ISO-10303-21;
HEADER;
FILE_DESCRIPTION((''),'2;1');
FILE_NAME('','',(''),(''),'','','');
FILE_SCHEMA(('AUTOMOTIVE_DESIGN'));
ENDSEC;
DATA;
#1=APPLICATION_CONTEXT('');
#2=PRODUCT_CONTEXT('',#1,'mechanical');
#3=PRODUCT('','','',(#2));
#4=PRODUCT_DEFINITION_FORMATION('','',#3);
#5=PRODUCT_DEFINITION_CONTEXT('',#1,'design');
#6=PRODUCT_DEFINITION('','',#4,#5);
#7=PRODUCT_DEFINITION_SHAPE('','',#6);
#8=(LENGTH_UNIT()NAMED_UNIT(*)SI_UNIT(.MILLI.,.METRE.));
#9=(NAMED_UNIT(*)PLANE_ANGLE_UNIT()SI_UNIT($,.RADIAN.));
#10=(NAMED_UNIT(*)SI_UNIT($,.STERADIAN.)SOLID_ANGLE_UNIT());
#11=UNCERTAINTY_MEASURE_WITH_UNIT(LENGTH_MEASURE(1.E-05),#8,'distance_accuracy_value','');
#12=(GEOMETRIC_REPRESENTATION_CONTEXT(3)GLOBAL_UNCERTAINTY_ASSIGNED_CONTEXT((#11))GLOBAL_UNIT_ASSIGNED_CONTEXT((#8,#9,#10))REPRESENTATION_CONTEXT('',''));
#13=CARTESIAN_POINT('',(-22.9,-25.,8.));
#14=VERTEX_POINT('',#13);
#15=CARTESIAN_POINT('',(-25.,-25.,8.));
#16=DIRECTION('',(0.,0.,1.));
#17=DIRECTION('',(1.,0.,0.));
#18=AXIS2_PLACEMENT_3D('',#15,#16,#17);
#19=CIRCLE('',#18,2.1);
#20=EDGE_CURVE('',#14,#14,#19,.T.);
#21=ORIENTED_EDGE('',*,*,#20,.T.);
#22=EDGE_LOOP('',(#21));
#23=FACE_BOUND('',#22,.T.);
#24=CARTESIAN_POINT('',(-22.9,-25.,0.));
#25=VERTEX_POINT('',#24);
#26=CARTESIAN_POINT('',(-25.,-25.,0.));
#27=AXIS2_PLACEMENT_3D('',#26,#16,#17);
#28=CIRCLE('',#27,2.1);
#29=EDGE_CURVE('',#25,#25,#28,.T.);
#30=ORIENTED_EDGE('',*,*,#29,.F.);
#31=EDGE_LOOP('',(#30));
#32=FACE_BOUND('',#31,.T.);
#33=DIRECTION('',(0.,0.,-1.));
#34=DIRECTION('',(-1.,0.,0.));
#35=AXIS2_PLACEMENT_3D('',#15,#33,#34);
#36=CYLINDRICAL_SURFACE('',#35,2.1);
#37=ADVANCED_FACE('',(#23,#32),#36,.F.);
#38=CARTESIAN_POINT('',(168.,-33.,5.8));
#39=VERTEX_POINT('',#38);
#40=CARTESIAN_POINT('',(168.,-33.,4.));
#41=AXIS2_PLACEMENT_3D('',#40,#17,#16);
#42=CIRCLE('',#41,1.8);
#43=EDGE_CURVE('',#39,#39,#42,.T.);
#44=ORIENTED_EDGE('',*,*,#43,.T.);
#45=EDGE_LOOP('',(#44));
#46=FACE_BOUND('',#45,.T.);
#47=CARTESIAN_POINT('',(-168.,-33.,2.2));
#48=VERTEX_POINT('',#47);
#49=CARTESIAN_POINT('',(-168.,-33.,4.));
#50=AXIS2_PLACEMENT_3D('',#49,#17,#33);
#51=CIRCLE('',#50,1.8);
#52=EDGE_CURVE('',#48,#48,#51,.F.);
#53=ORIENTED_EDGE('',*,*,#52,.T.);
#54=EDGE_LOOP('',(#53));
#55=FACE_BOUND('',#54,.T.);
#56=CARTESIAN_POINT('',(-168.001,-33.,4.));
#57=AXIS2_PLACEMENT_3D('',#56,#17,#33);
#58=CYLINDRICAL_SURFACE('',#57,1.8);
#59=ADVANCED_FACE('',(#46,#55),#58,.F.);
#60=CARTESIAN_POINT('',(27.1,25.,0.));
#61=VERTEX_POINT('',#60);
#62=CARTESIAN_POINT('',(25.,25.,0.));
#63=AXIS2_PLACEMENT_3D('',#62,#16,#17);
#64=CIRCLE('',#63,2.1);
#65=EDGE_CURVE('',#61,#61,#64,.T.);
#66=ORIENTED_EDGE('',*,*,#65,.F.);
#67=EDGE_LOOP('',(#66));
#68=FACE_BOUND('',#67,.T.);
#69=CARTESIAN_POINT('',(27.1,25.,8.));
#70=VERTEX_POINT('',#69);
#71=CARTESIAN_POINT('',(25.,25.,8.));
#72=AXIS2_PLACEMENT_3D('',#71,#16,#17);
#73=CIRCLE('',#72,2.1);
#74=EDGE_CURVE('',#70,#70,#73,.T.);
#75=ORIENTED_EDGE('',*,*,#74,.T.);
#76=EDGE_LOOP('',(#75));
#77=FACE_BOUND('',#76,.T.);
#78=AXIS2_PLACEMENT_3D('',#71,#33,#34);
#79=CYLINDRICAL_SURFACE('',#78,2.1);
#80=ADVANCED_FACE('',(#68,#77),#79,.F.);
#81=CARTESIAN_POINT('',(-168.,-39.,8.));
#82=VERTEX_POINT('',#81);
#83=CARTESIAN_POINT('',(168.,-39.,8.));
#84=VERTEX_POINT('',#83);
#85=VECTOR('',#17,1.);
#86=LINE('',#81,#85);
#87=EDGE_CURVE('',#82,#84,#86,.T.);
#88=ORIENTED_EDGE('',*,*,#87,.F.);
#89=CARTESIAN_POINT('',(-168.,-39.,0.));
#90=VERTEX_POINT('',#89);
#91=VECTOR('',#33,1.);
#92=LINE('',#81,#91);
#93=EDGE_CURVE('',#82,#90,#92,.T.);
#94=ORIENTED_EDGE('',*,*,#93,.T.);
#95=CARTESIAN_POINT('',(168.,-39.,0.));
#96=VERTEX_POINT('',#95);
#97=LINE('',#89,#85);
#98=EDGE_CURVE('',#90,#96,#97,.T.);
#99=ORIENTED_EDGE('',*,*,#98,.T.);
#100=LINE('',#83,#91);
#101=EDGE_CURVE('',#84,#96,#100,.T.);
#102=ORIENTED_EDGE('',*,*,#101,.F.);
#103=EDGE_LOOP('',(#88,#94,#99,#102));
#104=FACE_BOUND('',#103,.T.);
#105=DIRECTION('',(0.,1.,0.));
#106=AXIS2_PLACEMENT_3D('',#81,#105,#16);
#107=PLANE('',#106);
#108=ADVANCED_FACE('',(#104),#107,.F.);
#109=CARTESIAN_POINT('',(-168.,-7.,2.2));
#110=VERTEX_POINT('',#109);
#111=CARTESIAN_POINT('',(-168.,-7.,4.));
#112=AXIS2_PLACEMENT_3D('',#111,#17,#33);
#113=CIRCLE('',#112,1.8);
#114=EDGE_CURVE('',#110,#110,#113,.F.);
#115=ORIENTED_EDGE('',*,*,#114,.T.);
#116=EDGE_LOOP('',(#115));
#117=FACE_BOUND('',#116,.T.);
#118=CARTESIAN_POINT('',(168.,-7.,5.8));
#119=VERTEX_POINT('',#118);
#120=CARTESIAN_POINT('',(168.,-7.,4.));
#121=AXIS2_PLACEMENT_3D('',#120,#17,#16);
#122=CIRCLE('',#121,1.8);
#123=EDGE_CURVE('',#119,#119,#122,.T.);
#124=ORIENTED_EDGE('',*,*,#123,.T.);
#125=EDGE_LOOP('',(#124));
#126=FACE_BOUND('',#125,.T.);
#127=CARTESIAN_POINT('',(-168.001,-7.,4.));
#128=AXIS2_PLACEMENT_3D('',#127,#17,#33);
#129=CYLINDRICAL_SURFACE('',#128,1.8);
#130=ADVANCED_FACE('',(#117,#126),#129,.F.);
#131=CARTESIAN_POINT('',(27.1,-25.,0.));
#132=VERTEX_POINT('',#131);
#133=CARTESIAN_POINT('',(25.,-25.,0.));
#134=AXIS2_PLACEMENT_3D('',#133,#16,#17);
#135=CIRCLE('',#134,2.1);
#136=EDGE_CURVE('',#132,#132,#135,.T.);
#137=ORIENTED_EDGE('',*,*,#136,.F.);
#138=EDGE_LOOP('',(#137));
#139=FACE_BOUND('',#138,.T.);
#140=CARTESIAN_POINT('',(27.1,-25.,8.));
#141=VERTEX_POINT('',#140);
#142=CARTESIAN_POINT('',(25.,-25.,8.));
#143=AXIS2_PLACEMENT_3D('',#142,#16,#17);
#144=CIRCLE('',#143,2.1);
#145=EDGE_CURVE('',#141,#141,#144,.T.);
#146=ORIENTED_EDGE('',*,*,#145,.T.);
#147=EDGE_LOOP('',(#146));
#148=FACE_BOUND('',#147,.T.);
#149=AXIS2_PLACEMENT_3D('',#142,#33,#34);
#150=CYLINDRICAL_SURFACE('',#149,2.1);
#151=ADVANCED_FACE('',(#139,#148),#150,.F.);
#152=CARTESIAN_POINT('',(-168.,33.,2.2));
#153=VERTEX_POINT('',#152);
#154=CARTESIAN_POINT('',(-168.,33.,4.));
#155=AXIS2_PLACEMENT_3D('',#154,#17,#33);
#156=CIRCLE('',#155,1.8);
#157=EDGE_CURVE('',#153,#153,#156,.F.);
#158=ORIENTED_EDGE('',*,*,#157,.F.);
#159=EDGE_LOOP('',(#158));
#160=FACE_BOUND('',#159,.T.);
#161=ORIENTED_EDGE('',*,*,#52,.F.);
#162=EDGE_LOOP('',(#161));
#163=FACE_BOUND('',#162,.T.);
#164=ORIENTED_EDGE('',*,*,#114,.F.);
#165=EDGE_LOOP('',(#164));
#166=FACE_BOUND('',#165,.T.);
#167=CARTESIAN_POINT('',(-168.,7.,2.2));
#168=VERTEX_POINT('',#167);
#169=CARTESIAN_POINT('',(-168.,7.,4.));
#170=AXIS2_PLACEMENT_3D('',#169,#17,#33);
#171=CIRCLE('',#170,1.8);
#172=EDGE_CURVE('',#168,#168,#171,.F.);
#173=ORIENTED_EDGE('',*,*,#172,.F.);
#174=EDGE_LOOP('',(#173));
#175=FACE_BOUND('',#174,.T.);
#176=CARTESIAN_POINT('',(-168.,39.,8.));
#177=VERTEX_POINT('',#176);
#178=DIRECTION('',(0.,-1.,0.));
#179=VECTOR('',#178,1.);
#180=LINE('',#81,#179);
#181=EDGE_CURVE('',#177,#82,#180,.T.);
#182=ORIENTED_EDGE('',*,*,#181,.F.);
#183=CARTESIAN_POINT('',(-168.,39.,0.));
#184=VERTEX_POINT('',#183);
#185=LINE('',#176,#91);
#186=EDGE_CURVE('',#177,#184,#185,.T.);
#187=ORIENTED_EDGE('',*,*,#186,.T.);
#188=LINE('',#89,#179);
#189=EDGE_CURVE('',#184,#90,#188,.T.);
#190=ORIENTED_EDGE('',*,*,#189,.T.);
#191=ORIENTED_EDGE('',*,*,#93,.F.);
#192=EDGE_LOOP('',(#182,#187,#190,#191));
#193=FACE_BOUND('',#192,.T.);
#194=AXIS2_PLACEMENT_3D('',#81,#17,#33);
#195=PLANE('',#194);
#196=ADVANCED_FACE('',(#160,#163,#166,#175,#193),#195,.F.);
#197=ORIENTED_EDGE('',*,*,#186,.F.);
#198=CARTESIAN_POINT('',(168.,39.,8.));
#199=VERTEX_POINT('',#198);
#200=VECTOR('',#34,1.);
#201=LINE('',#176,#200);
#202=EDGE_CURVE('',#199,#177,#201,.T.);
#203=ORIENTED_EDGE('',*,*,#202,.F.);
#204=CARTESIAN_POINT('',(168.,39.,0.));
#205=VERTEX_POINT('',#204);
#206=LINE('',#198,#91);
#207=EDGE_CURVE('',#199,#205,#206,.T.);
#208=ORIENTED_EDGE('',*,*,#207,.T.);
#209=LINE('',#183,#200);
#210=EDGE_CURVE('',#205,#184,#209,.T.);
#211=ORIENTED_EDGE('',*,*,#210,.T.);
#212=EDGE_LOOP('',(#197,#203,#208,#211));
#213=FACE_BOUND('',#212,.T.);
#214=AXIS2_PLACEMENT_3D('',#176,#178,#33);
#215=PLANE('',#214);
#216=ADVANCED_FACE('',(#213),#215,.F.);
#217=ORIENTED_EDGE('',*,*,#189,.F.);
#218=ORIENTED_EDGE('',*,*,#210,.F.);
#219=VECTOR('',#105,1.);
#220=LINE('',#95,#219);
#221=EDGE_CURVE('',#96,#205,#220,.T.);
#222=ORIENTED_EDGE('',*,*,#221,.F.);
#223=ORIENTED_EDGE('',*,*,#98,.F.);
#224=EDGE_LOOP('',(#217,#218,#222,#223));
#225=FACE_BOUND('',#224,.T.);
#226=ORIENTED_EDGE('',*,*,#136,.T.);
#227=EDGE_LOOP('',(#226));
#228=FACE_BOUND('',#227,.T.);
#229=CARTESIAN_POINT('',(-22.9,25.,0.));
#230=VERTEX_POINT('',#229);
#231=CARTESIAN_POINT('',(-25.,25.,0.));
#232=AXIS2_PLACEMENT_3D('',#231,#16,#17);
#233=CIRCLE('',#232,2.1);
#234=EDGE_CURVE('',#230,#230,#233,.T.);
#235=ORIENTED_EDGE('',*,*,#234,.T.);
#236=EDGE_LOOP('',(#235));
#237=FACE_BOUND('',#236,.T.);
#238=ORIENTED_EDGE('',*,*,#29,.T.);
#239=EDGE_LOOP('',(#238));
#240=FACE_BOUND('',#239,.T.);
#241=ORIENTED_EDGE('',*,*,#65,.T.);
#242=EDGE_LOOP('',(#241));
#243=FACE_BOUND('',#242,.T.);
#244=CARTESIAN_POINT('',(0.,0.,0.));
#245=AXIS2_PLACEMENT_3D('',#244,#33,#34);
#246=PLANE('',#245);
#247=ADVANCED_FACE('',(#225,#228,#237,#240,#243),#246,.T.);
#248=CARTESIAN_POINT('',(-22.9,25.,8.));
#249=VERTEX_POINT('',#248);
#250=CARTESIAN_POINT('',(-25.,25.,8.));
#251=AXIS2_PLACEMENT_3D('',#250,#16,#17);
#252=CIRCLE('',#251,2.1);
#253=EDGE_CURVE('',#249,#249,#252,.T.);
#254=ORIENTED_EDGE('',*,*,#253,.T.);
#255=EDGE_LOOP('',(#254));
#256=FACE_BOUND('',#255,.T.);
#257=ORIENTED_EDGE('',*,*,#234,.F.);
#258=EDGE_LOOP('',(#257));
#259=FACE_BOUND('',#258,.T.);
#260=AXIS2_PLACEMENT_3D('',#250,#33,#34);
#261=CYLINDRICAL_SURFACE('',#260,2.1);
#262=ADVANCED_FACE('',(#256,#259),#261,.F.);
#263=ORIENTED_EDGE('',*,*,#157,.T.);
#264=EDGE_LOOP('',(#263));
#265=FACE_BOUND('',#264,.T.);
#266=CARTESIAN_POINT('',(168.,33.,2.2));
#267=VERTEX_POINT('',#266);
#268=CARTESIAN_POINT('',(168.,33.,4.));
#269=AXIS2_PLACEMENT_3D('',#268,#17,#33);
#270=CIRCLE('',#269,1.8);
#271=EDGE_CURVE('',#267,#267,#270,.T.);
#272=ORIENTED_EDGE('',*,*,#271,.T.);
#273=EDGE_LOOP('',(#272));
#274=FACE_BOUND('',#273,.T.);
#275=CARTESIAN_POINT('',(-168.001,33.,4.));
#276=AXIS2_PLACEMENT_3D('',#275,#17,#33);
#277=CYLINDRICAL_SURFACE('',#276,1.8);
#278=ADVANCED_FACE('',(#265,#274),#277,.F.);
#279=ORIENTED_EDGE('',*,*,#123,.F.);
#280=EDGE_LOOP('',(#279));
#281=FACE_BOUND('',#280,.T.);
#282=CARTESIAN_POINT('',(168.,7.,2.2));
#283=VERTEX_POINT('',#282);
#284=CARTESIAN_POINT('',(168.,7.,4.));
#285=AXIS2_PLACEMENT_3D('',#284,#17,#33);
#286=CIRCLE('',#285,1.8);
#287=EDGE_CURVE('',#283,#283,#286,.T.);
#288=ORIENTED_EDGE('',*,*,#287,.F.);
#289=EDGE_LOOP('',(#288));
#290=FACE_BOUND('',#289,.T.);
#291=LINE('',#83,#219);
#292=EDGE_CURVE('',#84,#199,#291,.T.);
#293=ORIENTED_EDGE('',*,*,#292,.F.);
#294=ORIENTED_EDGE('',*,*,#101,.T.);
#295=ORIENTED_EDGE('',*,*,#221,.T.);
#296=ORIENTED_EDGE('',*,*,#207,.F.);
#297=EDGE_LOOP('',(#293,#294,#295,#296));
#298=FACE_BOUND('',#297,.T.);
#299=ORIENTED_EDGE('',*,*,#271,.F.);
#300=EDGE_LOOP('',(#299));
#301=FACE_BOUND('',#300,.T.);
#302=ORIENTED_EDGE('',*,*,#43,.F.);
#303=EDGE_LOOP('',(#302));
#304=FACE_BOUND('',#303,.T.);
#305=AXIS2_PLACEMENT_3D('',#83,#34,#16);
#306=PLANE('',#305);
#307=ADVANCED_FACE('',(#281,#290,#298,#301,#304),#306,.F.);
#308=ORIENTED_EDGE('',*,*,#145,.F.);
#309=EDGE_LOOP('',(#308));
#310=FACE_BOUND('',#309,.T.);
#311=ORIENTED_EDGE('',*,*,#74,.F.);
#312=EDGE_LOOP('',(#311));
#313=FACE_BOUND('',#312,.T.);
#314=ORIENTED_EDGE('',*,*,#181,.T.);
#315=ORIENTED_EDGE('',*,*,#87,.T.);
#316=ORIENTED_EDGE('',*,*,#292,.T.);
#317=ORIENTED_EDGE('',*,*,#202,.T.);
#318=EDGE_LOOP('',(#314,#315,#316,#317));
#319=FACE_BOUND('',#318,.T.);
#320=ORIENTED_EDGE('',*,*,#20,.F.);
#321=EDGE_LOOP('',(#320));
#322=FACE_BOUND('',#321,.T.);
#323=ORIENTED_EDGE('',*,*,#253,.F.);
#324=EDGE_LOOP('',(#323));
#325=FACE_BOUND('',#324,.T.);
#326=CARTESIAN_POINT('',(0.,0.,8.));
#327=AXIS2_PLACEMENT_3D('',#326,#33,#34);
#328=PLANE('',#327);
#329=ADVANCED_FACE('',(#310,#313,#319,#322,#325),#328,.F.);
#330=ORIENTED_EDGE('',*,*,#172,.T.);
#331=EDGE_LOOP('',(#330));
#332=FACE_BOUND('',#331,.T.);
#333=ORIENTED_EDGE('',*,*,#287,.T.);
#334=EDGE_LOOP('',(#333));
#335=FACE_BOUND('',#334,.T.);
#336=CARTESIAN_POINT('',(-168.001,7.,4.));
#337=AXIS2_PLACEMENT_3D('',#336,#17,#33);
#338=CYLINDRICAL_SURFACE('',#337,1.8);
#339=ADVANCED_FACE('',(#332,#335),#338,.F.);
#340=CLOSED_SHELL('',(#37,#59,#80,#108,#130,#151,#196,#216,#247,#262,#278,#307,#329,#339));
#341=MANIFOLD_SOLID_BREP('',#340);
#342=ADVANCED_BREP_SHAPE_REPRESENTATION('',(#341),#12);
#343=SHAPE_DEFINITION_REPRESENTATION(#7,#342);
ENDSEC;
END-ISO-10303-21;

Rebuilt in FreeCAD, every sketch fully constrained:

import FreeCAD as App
import Part
import Sketcher
from FreeCAD import Vector


def add_polygon(sketch, points):
    """Adds a closed chain of lines whose ends are joined by coincident constraints."""
    first, n = sketch.GeometryCount, len(points)
    for a, b in zip(points, points[1:] + points[:1]):
        sketch.addGeometry(Part.LineSegment(App.Vector(*a, 0), App.Vector(*b, 0)), False)
    for i in range(n):
        sketch.addConstraint(Sketcher.Constraint("Coincident", first + i, 2, first + (i + 1) % n, 1))

doc = App.newDocument("Part")
body = doc.addObject("PartDesign::Body", "Body")

sketch1 = body.newObject("Sketcher::SketchObject", "Sketch")
sketch1.AttachmentSupport = (doc.getObject("XY_Plane"), [""])
sketch1.MapMode = "FlatFace"
add_polygon(sketch1, [(-168, 39), (-168, -39), (168, -39), (168, 39)])
sketch1.addGeometry(Part.Circle(Vector(-25, -25, 0), Vector(0, 0, 1), 2.1), False)
sketch1.addGeometry(Part.Circle(Vector(25, -25, 0), Vector(0, 0, 1), 2.1), False)
sketch1.addGeometry(Part.Circle(Vector(-25, 25, 0), Vector(0, 0, 1), 2.1), False)
sketch1.addGeometry(Part.Circle(Vector(25, 25, 0), Vector(0, 0, 1), 2.1), False)
sketch1.addConstraint([
    Sketcher.Constraint("Vertical", 0),
    Sketcher.Constraint("Horizontal", 1),
    Sketcher.Constraint("Vertical", 2),
    Sketcher.Constraint("Horizontal", 3),
    Sketcher.Constraint("Equal", 4, 5),
    Sketcher.Constraint("Equal", 5, 6),
    Sketcher.Constraint("Equal", 6, 7),
    Sketcher.Constraint("Symmetric", 5, 3, 6, 3, -1, 1),
    Sketcher.Constraint("Symmetric", 4, 3, 7, 3, -1, 1),
    Sketcher.Constraint("Symmetric", 0, 2, 2, 2, -1, 1),
    Sketcher.Constraint("Symmetric", 4, 3, 5, 3, -2),
    Sketcher.Constraint("Diameter", 4, 4.2),
    Sketcher.Constraint("DistanceX", 1, 1, 1, 2, 336.0),
    Sketcher.Constraint("DistanceY", 0, 2, 0, 1, 78.0),
    Sketcher.Constraint("DistanceX", 4, 3, -1, 1, 25.0),
    Sketcher.Constraint("DistanceY", 4, 3, -1, 1, 25.0),
])
pad1 = body.newObject("PartDesign::Pad", "Pad")
pad1.Profile = sketch1
pad1.Length = 8

sketch2 = body.newObject("Sketcher::SketchObject", "Sketch001")
sketch2.AttachmentSupport = (doc.getObject("YZ_Plane"), [""])
sketch2.MapMode = "FlatFace"
sketch2.AttachmentOffset = App.Placement(Vector(0, 0, 168), App.Rotation())
sketch2.addGeometry(Part.Circle(Vector(33, 4, 0), Vector(0, 0, 1), 1.8), False)
sketch2.addConstraint([
    Sketcher.Constraint("Diameter", 0, 3.6),
    Sketcher.Constraint("DistanceX", -1, 1, 0, 3, 33.0),
    Sketcher.Constraint("DistanceY", -1, 1, 0, 3, 4.0),
])
pocket1 = body.newObject("PartDesign::Pocket", "Pocket")
pocket1.Profile = sketch2
pocket1.Type = "UpToFirst"

sketch3 = body.newObject("Sketcher::SketchObject", "Sketch002")
sketch3.AttachmentSupport = (doc.getObject("YZ_Plane"), [""])
sketch3.MapMode = "FlatFace"
sketch3.AttachmentOffset = App.Placement(Vector(0, 0, 168), App.Rotation())
sketch3.addGeometry(Part.Circle(Vector(7, 4, 0), Vector(0, 0, 1), 1.8), False)
sketch3.addConstraint([
    Sketcher.Constraint("Diameter", 0, 3.6),
    Sketcher.Constraint("DistanceX", -1, 1, 0, 3, 7.0),
    Sketcher.Constraint("DistanceY", -1, 1, 0, 3, 4.0),
])
pocket2 = body.newObject("PartDesign::Pocket", "Pocket001")
pocket2.Profile = sketch3
pocket2.Type = "UpToFirst"

sketch4 = body.newObject("Sketcher::SketchObject", "Sketch003")
sketch4.AttachmentSupport = (doc.getObject("YZ_Plane"), [""])
sketch4.MapMode = "FlatFace"
sketch4.AttachmentOffset = App.Placement(Vector(0, 0, 168), App.Rotation())
sketch4.addGeometry(Part.Circle(Vector(-7, 4, 0), Vector(0, 0, 1), 1.8), False)
sketch4.addConstraint([
    Sketcher.Constraint("Diameter", 0, 3.6),
    Sketcher.Constraint("DistanceX", 0, 3, -1, 1, 7.0),
    Sketcher.Constraint("DistanceY", -1, 1, 0, 3, 4.0),
])
pocket3 = body.newObject("PartDesign::Pocket", "Pocket002")
pocket3.Profile = sketch4
pocket3.Type = "UpToFirst"

sketch5 = body.newObject("Sketcher::SketchObject", "Sketch004")
sketch5.AttachmentSupport = (doc.getObject("YZ_Plane"), [""])
sketch5.MapMode = "FlatFace"
sketch5.AttachmentOffset = App.Placement(Vector(0, 0, 168), App.Rotation())
sketch5.addGeometry(Part.Circle(Vector(-33, 4, 0), Vector(0, 0, 1), 1.8), False)
sketch5.addConstraint([
    Sketcher.Constraint("Diameter", 0, 3.6),
    Sketcher.Constraint("DistanceX", 0, 3, -1, 1, 33.0),
    Sketcher.Constraint("DistanceY", -1, 1, 0, 3, 4.0),
])
pocket4 = body.newObject("PartDesign::Pocket", "Pocket003")
pocket4.Profile = sketch5
pocket4.Type = "UpToFirst"

doc.recompute()
